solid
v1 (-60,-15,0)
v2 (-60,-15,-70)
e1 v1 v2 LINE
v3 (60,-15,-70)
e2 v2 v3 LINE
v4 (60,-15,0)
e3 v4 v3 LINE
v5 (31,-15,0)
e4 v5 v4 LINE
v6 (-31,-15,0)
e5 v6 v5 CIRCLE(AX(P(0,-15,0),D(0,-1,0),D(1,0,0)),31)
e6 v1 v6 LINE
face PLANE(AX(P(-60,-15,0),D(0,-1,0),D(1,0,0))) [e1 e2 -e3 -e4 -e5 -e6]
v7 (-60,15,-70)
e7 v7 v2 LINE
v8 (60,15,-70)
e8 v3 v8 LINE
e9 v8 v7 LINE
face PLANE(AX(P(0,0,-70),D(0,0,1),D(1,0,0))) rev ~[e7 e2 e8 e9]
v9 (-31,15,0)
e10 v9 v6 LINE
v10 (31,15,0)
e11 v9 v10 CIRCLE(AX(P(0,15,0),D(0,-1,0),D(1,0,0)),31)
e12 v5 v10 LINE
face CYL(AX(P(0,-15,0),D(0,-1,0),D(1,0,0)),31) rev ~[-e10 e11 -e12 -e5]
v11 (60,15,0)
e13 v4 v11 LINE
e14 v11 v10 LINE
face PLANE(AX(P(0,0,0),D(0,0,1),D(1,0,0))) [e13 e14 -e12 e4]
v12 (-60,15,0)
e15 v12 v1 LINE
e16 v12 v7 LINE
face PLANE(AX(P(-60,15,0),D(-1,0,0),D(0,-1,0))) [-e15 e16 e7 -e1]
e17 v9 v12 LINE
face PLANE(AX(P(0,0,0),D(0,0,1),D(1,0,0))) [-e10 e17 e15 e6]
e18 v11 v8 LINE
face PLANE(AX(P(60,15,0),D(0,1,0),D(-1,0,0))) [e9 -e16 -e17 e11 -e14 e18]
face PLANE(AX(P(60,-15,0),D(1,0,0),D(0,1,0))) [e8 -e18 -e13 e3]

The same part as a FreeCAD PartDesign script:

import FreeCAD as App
import Part
import Sketcher
from FreeCAD import Vector

doc = App.newDocument("Part")
params = doc.addObject("Spreadsheet::Sheet", "Params")
for row, (alias, value) in enumerate([
    ("sketch1_width", "120 mm"),
    ("sketch1_height", "30 mm"),
    ("pad1_length", "70 mm"),
    ("sketch2_diameter", "62 mm"),
    ("pocket1_length", "30 mm"),
], start=1):
    params.set(f"A{row}", alias)
    params.set(f"B{row}", "=" + value)
    params.setAlias(f"B{row}", alias)

body = doc.addObject("PartDesign::Body", "Body")

# Sketch on XY plane
sketch1 = body.newObject("Sketcher::SketchObject", "Sketch")
sketch1.AttachmentSupport = (doc.getObject("XY_Plane"), [""])
sketch1.MapMode = "FlatFace"
sketch1.addGeometry([
    Part.LineSegment(Vector(-60, 15, 0), Vector(-60, -15, 0)),
    Part.LineSegment(Vector(-60, -15, 0), Vector(60, -15, 0)),
    Part.LineSegment(Vector(60, -15, 0), Vector(60, 15, 0)),
    Part.LineSegment(Vector(60, 15, 0), Vector(-60, 15, 0)),
], False)
sketch1.addConstraint([
    Sketcher.Constraint("Coincident", 0, 2, 1, 1),
    Sketcher.Constraint("Coincident", 1, 2, 2, 1),
    Sketcher.Constraint("Coincident", 2, 2, 3, 1),
    Sketcher.Constraint("Coincident", 3, 2, 0, 1),
    Sketcher.Constraint("Vertical", 0),
    Sketcher.Constraint("Horizontal", 1),
    Sketcher.Constraint("Vertical", 2),
    Sketcher.Constraint("Horizontal", 3),
    Sketcher.Constraint("Symmetric", 0, 2, 2, 2, -1, 1),
    Sketcher.Constraint("DistanceX", 1, 1, 1, 2, 120.0),
    Sketcher.Constraint("DistanceY", 0, 2, 0, 1, 30.0),
])
sketch1.setExpression("Constraints[9]", "Params.sketch1_width")
sketch1.setExpression("Constraints[10]", "Params.sketch1_height")
pad1 = body.newObject("PartDesign::Pad", "Pad")
pad1.Profile = sketch1
pad1.setExpression("Length", "Params.pad1_length")
pad1.Reversed = True

# Sketch on XZ plane
sketch2 = body.newObject("Sketcher::SketchObject", "Sketch001")
sketch2.AttachmentSupport = (doc.getObject("XZ_Plane"), [""])
sketch2.MapMode = "FlatFace"
sketch2.AttachmentOffset = App.Placement(Vector(0, 0, 15), App.Rotation())
sketch2.addGeometry(Part.Circle(Vector(0, 0, 0), Vector(0, 0, 1), 31), False)
sketch2.addConstraint([
    Sketcher.Constraint("Coincident", 0, 3, -1, 1),
    Sketcher.Constraint("Diameter", 0, 62.0),
])
sketch2.setExpression("Constraints[1]", "Params.sketch2_diameter")
pocket1 = body.newObject("PartDesign::Pocket", "Pocket")
pocket1.Profile = sketch2
pocket1.setExpression("Length", "Params.pocket1_length")

doc.recompute()
